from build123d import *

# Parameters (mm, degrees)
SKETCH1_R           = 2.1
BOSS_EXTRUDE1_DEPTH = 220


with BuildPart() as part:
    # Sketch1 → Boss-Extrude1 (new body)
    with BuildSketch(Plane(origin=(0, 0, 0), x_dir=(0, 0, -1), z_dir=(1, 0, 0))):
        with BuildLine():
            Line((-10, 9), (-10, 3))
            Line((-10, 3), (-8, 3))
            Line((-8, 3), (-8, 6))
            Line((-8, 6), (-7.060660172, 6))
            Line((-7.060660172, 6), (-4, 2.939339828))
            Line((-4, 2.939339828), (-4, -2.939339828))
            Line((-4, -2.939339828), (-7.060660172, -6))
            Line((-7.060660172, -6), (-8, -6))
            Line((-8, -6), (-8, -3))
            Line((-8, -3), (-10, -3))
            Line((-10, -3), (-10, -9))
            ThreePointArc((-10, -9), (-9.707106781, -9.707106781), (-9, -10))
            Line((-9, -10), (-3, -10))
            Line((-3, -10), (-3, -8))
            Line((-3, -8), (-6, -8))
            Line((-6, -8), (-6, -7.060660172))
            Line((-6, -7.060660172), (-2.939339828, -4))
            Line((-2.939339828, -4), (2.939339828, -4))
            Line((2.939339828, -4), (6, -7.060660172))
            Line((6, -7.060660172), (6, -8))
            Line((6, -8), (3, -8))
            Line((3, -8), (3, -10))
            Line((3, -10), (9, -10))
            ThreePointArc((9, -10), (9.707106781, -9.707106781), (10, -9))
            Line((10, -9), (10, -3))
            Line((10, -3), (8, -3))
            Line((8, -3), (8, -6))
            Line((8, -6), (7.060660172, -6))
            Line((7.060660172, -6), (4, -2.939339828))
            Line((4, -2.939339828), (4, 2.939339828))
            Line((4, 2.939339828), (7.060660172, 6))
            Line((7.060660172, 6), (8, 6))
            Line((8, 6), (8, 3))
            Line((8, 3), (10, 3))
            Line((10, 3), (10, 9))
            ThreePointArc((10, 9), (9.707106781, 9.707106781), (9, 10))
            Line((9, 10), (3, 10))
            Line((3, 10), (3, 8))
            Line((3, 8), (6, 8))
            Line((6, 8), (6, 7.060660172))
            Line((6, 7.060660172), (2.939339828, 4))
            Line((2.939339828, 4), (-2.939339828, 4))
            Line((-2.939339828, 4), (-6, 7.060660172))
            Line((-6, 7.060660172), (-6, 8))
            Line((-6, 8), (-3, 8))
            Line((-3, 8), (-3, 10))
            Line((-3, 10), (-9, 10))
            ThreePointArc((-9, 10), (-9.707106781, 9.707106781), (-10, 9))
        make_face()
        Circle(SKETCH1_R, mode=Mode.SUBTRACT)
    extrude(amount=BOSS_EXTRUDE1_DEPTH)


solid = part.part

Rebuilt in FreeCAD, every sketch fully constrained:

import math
import FreeCAD as App
import Part
import Sketcher

V = App.Vector

doc = App.newDocument("Part")
body = doc.addObject("PartDesign::Body", "Body")

# Sketch on YZ plane
sketch1 = body.newObject("Sketcher::SketchObject", "Sketch")
sketch1.AttachmentSupport = (doc.getObject("YZ_Plane"), [""])
sketch1.MapMode = "FlatFace"
sketch1.addGeometry(Part.LineSegment(V(9, 10, 0), V(3, 10, 0)), False)
sketch1.addGeometry(Part.LineSegment(V(3, 10, 0), V(3, 8, 0)), False)
sketch1.addGeometry(Part.LineSegment(V(3, 8, 0), V(6, 8, 0)), False)
sketch1.addGeometry(Part.LineSegment(V(6, 8, 0), V(6, 7.06066, 0)), False)
sketch1.addGeometry(Part.LineSegment(V(6, 7.06066, 0), V(2.93934, 4, 0)), False)
sketch1.addGeometry(Part.LineSegment(V(2.93934, 4, 0), V(-2.93934, 4, 0)), False)
sketch1.addGeometry(Part.LineSegment(V(-2.93934, 4, 0), V(-6, 7.06066, 0)), False)
sketch1.addGeometry(Part.LineSegment(V(-6, 7.06066, 0), V(-6, 8, 0)), False)
sketch1.addGeometry(Part.LineSegment(V(-6, 8, 0), V(-3, 8, 0)), False)
sketch1.addGeometry(Part.LineSegment(V(-3, 8, 0), V(-3, 10, 0)), False)
sketch1.addGeometry(Part.LineSegment(V(-3, 10, 0), V(-9, 10, 0)), False)
sketch1.addGeometry(Part.ArcOfCircle(Part.Circle(V(-9, 9, 0), V(0, 0, 1), 1), math.radians(90), math.radians(180)), False)
sketch1.addGeometry(Part.LineSegment(V(-10, 9, 0), V(-10, 3, 0)), False)
sketch1.addGeometry(Part.LineSegment(V(-10, 3, 0), V(-8, 3, 0)), False)
sketch1.addGeometry(Part.LineSegment(V(-8, 3, 0), V(-8, 6, 0)), False)
sketch1.addGeometry(Part.LineSegment(V(-8, 6, 0), V(-7.06066, 6, 0)), False)
sketch1.addGeometry(Part.LineSegment(V(-7.06066, 6, 0), V(-4, 2.93934, 0)), False)
sketch1.addGeometry(Part.LineSegment(V(-4, 2.93934, 0), V(-4, -2.93934, 0)), False)
sketch1.addGeometry(Part.LineSegment(V(-4, -2.93934, 0), V(-7.06066, -6, 0)), False)
sketch1.addGeometry(Part.LineSegment(V(-7.06066, -6, 0), V(-8, -6, 0)), False)
sketch1.addGeometry(Part.LineSegment(V(-8, -6, 0), V(-8, -3, 0)), False)
sketch1.addGeometry(Part.LineSegment(V(-8, -3, 0), V(-10, -3, 0)), False)
sketch1.addGeometry(Part.LineSegment(V(-10, -3, 0), V(-10, -9, 0)), False)
sketch1.addGeometry(Part.ArcOfCircle(Part.Circle(V(-9, -9, 0), V(0, 0, 1), 1), math.radians(-180), math.radians(-90)), False)
sketch1.addGeometry(Part.LineSegment(V(-9, -10, 0), V(-3, -10, 0)), False)
sketch1.addGeometry(Part.LineSegment(V(-3, -10, 0), V(-3, -8, 0)), False)
sketch1.addGeometry(Part.LineSegment(V(-3, -8, 0), V(-6, -8, 0)), False)
sketch1.addGeometry(Part.LineSegment(V(-6, -8, 0), V(-6, -7.06066, 0)), False)
sketch1.addGeometry(Part.LineSegment(V(-6, -7.06066, 0), V(-2.93934, -4, 0)), False)
sketch1.addGeometry(Part.LineSegment(V(-2.93934, -4, 0), V(2.93934, -4, 0)), False)
sketch1.addGeometry(Part.LineSegment(V(2.93934, -4, 0), V(6, -7.06066, 0)), False)
sketch1.addGeometry(Part.LineSegment(V(6, -7.06066, 0), V(6, -8, 0)), False)
sketch1.addGeometry(Part.LineSegment(V(6, -8, 0), V(3, -8, 0)), False)
sketch1.addGeometry(Part.LineSegment(V(3, -8, 0), V(3, -10, 0)), False)
sketch1.addGeometry(Part.LineSegment(V(3, -10, 0), V(9, -10, 0)), False)
sketch1.addGeometry(Part.ArcOfCircle(Part.Circle(V(9, -9, 0), V(0, 0, 1), 1), math.radians(-90), math.radians(0)), False)
sketch1.addGeometry(Part.LineSegment(V(10, -9, 0), V(10, -3, 0)), False)
sketch1.addGeometry(Part.LineSegment(V(10, -3, 0), V(8, -3, 0)), False)
sketch1.addGeometry(Part.LineSegment(V(8, -3, 0), V(8, -6, 0)), False)
sketch1.addGeometry(Part.LineSegment(V(8, -6, 0), V(7.06066, -6, 0)), False)
sketch1.addGeometry(Part.LineSegment(V(7.06066, -6, 0), V(4, -2.93934, 0)), False)
sketch1.addGeometry(Part.LineSegment(V(4, -2.93934, 0), V(4, 2.93934, 0)), False)
sketch1.addGeometry(Part.LineSegment(V(4, 2.93934, 0), V(7.06066, 6, 0)), False)
sketch1.addGeometry(Part.LineSegment(V(7.06066, 6, 0), V(8, 6, 0)), False)
sketch1.addGeometry(Part.LineSegment(V(8, 6, 0), V(8, 3, 0)), False)
sketch1.addGeometry(Part.LineSegment(V(8, 3, 0), V(10, 3, 0)), False)
sketch1.addGeometry(Part.LineSegment(V(10, 3, 0), V(10, 9, 0)), False)
sketch1.addGeometry(Part.ArcOfCircle(Part.Circle(V(9, 9, 0), V(0, 0, 1), 1), math.radians(0), math.radians(90)), False)
sketch1.addGeometry(Part.Circle(V(0, 0, 0), V(0, 0, 1), 2.1), False)
sketch1.addConstraint(Sketcher.Constraint("Coincident", 0, 2, 1, 1))
sketch1.addConstraint(Sketcher.Constraint("Coincident", 1, 2, 2, 1))
sketch1.addConstraint(Sketcher.Constraint("Coincident", 2, 2, 3, 1))
sketch1.addConstraint(Sketcher.Constraint("Coincident", 3, 2, 4, 1))
sketch1.addConstraint(Sketcher.Constraint("Coincident", 4, 2, 5, 1))
sketch1.addConstraint(Sketcher.Constraint("Coincident", 5, 2, 6, 1))
sketch1.addConstraint(Sketcher.Constraint("Coincident", 6, 2, 7, 1))
sketch1.addConstraint(Sketcher.Constraint("Coincident", 7, 2, 8, 1))
sketch1.addConstraint(Sketcher.Constraint("Coincident", 8, 2, 9, 1))
sketch1.addConstraint(Sketcher.Constraint("Coincident", 9, 2, 10, 1))
sketch1.addConstraint(Sketcher.Constraint("Tangent", 10, 2, 11, 1))
sketch1.addConstraint(Sketcher.Constraint("Tangent", 11, 2, 12, 1))
sketch1.addConstraint(Sketcher.Constraint("Coincident", 12, 2, 13, 1))
sketch1.addConstraint(Sketcher.Constraint("Coincident", 13, 2, 14, 1))
sketch1.addConstraint(Sketcher.Constraint("Coincident", 14, 2, 15, 1))
sketch1.addConstraint(Sketcher.Constraint("Coincident", 15, 2, 16, 1))
sketch1.addConstraint(Sketcher.Constraint("Coincident", 16, 2, 17, 1))
sketch1.addConstraint(Sketcher.Constraint("Coincident", 17, 2, 18, 1))
sketch1.addConstraint(Sketcher.Constraint("Coincident", 18, 2, 19, 1))
sketch1.addConstraint(Sketcher.Constraint("Coincident", 19, 2, 20, 1))
sketch1.addConstraint(Sketcher.Constraint("Coincident", 20, 2, 21, 1))
sketch1.addConstraint(Sketcher.Constraint("Coincident", 21, 2, 22, 1))
sketch1.addConstraint(Sketcher.Constraint("Tangent", 22, 2, 23, 1))
sketch1.addConstraint(Sketcher.Constraint("Tangent", 23, 2, 24, 1))
sketch1.addConstraint(Sketcher.Constraint("Coincident", 24, 2, 25, 1))
sketch1.addConstraint(Sketcher.Constraint("Coincident", 25, 2, 26, 1))
sketch1.addConstraint(Sketcher.Constraint("Coincident", 26, 2, 27, 1))
sketch1.addConstraint(Sketcher.Constraint("Coincident", 27, 2, 28, 1))
sketch1.addConstraint(Sketcher.Constraint("Coincident", 28, 2, 29, 1))
sketch1.addConstraint(Sketcher.Constraint("Coincident", 29, 2, 30, 1))
sketch1.addConstraint(Sketcher.Constraint("Coincident", 30, 2, 31, 1))
sketch1.addConstraint(Sketcher.Constraint("Coincident", 31, 2, 32, 1))
sketch1.addConstraint(Sketcher.Constraint("Coincident", 32, 2, 33, 1))
sketch1.addConstraint(Sketcher.Constraint("Coincident", 33, 2, 34, 1))
sketch1.addConstraint(Sketcher.Constraint("Tangent", 34, 2, 35, 1))
sketch1.addConstraint(Sketcher.Constraint("Tangent", 35, 2, 36, 1))
sketch1.addConstraint(Sketcher.Constraint("Coincident", 36, 2, 37, 1))
sketch1.addConstraint(Sketcher.Constraint("Coincident", 37, 2, 38, 1))
sketch1.addConstraint(Sketcher.Constraint("Coincident", 38, 2, 39, 1))
sketch1.addConstraint(Sketcher.Constraint("Coincident", 39, 2, 40, 1))
sketch1.addConstraint(Sketcher.Constraint("Coincident", 40, 2, 41, 1))
sketch1.addConstraint(Sketcher.Constraint("Coincident", 41, 2, 42, 1))
sketch1.addConstraint(Sketcher.Constraint("Coincident", 42, 2, 43, 1))
sketch1.addConstraint(Sketcher.Constraint("Coincident", 43, 2, 44, 1))
sketch1.addConstraint(Sketcher.Constraint("Coincident", 44, 2, 45, 1))
sketch1.addConstraint(Sketcher.Constraint("Coincident", 45, 2, 46, 1))
sketch1.addConstraint(Sketcher.Constraint("Tangent", 46, 2, 47, 1))
sketch1.addConstraint(Sketcher.Constraint("Tangent", 47, 2, 0, 1))
sketch1.addConstraint(Sketcher.Constraint("Horizontal", 0))
sketch1.addConstraint(Sketcher.Constraint("Vertical", 1))
sketch1.addConstraint(Sketcher.Constraint("Horizontal", 2))
sketch1.addConstraint(Sketcher.Constraint("Vertical", 3))
sketch1.addConstraint(Sketcher.Constraint("Horizontal", 5))
sketch1.addConstraint(Sketcher.Constraint("Vertical", 7))
sketch1.addConstraint(Sketcher.Constraint("Horizontal", 8))
sketch1.addConstraint(Sketcher.Constraint("Vertical", 9))
sketch1.addConstraint(Sketcher.Constraint("Horizontal", 10))
sketch1.addConstraint(Sketcher.Constraint("Vertical", 12))
sketch1.addConstraint(Sketcher.Constraint("Horizontal", 13))
sketch1.addConstraint(Sketcher.Constraint("Vertical", 14))
sketch1.addConstraint(Sketcher.Constraint("Horizontal", 15))
sketch1.addConstraint(Sketcher.Constraint("Vertical", 17))
sketch1.addConstraint(Sketcher.Constraint("Horizontal", 19))
sketch1.addConstraint(Sketcher.Constraint("Vertical", 20))
sketch1.addConstraint(Sketcher.Constraint("Horizontal", 21))
sketch1.addConstraint(Sketcher.Constraint("Vertical", 22))
sketch1.addConstraint(Sketcher.Constraint("Horizontal", 24))
sketch1.addConstraint(Sketcher.Constraint("Vertical", 25))
sketch1.addConstraint(Sketcher.Constraint("Horizontal", 26))
sketch1.addConstraint(Sketcher.Constraint("Vertical", 27))
sketch1.addConstraint(Sketcher.Constraint("Horizontal", 29))
sketch1.addConstraint(Sketcher.Constraint("Vertical", 31))
sketch1.addConstraint(Sketcher.Constraint("Horizontal", 32))
sketch1.addConstraint(Sketcher.Constraint("Vertical", 33))
sketch1.addConstraint(Sketcher.Constraint("Horizontal", 34))
sketch1.addConstraint(Sketcher.Constraint("Vertical", 36))
sketch1.addConstraint(Sketcher.Constraint("Horizontal", 37))
sketch1.addConstraint(Sketcher.Constraint("Vertical", 38))
sketch1.addConstraint(Sketcher.Constraint("Horizontal", 39))
sketch1.addConstraint(Sketcher.Constraint("Vertical", 41))
sketch1.addConstraint(Sketcher.Constraint("Horizontal", 43))
sketch1.addConstraint(Sketcher.Constraint("Vertical", 44))
sketch1.addConstraint(Sketcher.Constraint("Horizontal", 45))
sketch1.addConstraint(Sketcher.Constraint("Vertical", 46))
sketch1.addConstraint(Sketcher.Constraint("Coincident", 48, 3, -1, 1))
sketch1.addConstraint(Sketcher.Constraint("Equal", 11, 23))
sketch1.addConstraint(Sketcher.Constraint("Equal", 23, 35))
sketch1.addConstraint(Sketcher.Constraint("Equal", 35, 47))
sketch1.addConstraint(Sketcher.Constraint("Symmetric", 11, 3, 35, 3, -1, 1))
sketch1.addConstraint(Sketcher.Constraint("Symmetric", 23, 3, 47, 3, -1, 1))
sketch1.addConstraint(Sketcher.Constraint("Symmetric", 1, 2, 25, 2, -1, 1))
sketch1.addConstraint(Sketcher.Constraint("Symmetric", 3, 2, 27, 2, -1, 1))
sketch1.addConstraint(Sketcher.Constraint("Symmetric", 4, 2, 28, 2, -1, 1))
sketch1.addConstraint(Sketcher.Constraint("Symmetric", 6, 2, 30, 2, -1, 1))
sketch1.addConstraint(Sketcher.Constraint("Symmetric", 8, 2, 32, 2, -1, 1))
sketch1.addConstraint(Sketcher.Constraint("Symmetric", 13, 2, 37, 2, -1, 1))
sketch1.addConstraint(Sketcher.Constraint("Symmetric", 15, 2, 39, 2, -1, 1))
sketch1.addConstraint(Sketcher.Constraint("Symmetric", 16, 2, 40, 2, -1, 1))
sketch1.addConstraint(Sketcher.Constraint("Symmetric", 18, 2, 42, 2, -1, 1))
sketch1.addConstraint(Sketcher.Constraint("Symmetric", 20, 2, 44, 2, -1, 1))
sketch1.addConstraint(Sketcher.Constraint("Symmetric", 23, 3, 35, 3, -2))
sketch1.addConstraint(Sketcher.Constraint("Symmetric", 3, 2, 6, 2, -2))
sketch1.addConstraint(Sketcher.Constraint("Symmetric", 1, 2, 8, 2, -2))
sketch1.addConstraint(Sketcher.Constraint("Symmetric", 20, 2, 37, 2, -2))
sketch1.addConstraint(Sketcher.Constraint("Symmetric", 18, 2, 39, 2, -2))
sketch1.addConstraint(Sketcher.Constraint("Perpendicular", 4, 6))
sketch1.addConstraint(Sketcher.Constraint("Parallel", 6, 16))
sketch1.addConstraint(Sketcher.Constraint("Perpendicular", 16, 18))
sketch1.addConstraint(Sketcher.Constraint("Perpendicular", 28, 30))
sketch1.addConstraint(Sketcher.Constraint("Perpendicular", 40, 42))
sketch1.addConstraint(Sketcher.Constraint("Horizontal", 17, 2, 40, 2))
sketch1.addConstraint(Sketcher.Constraint("Equal", 45, 1))
sketch1.addConstraint(Sketcher.Constraint("Equal", 43, 3))
sketch1.addConstraint(Sketcher.Constraint("Equal", 34, 12))
sketch1.addConstraint(Sketcher.Constraint("Equal", 32, 14))
sketch1.addConstraint(Sketcher.Constraint("Equal", 29, 17))
sketch1.addConstraint(Sketcher.Constraint("Equal", 6, 16))
sketch1.addConstraint(Sketcher.Constraint("Radius", 11, 1.0))
sketch1.addConstraint(Sketcher.Constraint("Diameter", 48, 4.2))
sketch1.addConstraint(Sketcher.Constraint("DistanceX", 0, 2, 0, 1, 6.0))
sketch1.addConstraint(Sketcher.Constraint("DistanceX", 2, 1, 2, 2, 3.0))
sketch1.addConstraint(Sketcher.Constraint("DistanceX", 13, 1, 13, 2, 2.0))
sketch1.addConstraint(Sketcher.Constraint("DistanceX", 11, 3, -1, 1, 9.0))
sketch1.addConstraint(Sketcher.Constraint("DistanceY", -1, 1, 4, 2, 4.0))
sketch1.addConstraint(Sketcher.Constraint("DistanceX", 5, 2, 5, 1, 5.87868))
pad1 = body.newObject("PartDesign::Pad", "Pad")
pad1.Profile = sketch1
pad1.Length = 220

doc.recompute()
